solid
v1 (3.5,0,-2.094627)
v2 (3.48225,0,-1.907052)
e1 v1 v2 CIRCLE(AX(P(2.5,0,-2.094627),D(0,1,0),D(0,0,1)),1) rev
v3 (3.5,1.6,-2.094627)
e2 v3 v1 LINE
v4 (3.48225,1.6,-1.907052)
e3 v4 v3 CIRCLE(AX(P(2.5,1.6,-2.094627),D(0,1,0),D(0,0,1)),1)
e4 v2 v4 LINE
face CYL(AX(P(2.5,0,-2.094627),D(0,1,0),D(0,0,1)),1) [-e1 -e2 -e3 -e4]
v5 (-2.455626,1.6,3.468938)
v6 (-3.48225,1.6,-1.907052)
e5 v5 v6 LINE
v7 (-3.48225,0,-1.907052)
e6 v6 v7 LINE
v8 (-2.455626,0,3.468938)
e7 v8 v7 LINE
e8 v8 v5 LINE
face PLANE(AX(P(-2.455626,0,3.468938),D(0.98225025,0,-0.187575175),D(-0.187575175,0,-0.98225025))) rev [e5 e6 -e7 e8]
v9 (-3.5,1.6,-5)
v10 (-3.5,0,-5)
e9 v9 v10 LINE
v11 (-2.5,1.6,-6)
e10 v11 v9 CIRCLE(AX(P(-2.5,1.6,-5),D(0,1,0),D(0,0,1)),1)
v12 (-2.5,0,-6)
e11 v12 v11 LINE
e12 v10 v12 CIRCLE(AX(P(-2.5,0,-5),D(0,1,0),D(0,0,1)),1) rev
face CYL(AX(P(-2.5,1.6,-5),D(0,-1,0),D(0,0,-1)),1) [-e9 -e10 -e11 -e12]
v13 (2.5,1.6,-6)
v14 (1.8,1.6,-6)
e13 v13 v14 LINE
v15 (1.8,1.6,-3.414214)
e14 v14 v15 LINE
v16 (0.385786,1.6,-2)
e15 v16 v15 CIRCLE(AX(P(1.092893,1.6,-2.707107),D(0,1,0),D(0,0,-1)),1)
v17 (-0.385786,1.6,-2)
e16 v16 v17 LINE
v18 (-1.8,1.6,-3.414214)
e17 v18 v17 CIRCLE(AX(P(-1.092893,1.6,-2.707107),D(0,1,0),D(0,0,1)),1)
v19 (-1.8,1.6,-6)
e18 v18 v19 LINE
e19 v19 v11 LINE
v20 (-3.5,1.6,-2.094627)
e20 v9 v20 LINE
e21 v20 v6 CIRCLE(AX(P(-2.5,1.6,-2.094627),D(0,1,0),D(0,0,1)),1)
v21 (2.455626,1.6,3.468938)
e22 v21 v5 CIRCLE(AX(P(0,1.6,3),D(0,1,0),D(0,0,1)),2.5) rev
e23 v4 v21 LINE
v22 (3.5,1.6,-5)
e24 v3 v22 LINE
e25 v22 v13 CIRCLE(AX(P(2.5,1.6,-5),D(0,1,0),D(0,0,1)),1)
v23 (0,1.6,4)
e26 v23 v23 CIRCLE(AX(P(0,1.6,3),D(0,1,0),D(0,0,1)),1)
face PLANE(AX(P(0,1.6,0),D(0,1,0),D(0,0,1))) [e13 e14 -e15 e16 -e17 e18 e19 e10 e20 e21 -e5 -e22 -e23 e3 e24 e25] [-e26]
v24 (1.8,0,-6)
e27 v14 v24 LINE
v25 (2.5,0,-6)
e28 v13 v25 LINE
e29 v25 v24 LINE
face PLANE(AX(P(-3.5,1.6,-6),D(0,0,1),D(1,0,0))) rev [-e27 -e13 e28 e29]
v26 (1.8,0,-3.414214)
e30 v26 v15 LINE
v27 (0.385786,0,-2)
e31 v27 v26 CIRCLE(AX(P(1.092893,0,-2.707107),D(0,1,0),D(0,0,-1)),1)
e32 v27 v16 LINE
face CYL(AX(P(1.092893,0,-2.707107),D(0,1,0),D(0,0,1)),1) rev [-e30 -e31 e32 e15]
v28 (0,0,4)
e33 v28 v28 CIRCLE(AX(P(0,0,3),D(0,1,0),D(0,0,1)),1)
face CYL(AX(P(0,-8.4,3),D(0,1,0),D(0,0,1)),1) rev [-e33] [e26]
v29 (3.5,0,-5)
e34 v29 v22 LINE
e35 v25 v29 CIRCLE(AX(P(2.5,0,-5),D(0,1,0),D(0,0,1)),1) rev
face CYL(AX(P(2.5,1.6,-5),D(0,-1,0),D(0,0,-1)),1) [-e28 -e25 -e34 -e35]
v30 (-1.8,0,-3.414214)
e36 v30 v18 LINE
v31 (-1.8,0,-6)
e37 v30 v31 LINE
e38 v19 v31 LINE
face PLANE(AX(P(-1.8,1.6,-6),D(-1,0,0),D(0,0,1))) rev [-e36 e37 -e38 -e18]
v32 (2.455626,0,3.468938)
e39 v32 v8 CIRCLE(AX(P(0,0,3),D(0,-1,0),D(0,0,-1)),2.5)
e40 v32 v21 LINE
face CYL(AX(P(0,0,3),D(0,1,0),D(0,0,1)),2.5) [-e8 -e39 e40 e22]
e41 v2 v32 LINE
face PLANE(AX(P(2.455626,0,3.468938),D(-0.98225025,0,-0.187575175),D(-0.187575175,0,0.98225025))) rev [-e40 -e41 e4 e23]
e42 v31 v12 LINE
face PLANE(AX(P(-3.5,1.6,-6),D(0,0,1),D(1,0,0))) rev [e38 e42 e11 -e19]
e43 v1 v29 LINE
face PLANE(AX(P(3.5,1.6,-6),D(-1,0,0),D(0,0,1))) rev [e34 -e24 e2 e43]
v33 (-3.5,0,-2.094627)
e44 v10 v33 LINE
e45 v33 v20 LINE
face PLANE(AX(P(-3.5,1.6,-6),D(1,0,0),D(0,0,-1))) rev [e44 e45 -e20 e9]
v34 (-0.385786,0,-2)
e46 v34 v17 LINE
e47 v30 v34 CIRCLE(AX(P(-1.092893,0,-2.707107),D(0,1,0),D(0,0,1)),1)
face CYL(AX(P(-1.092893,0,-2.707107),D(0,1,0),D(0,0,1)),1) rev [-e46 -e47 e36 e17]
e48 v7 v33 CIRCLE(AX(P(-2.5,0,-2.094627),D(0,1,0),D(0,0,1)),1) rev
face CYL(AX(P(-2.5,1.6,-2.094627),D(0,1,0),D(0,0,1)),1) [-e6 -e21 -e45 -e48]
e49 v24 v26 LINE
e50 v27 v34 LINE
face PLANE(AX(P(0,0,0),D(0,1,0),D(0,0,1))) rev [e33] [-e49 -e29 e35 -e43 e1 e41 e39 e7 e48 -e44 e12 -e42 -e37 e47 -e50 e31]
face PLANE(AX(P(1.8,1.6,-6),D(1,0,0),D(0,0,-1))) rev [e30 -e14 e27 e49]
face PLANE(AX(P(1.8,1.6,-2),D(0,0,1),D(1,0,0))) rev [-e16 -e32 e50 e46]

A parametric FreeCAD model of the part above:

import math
import FreeCAD as App
import Part
import Sketcher
from FreeCAD import Vector


def edges_at(feature, points):
    """Names of the edges that pass closest to the given points."""
    edges = feature.Shape.Edges
    near = lambda p: min(range(len(edges)), key=lambda i: edges[i].distToShape(Part.Vertex(*p))[0])
    return sorted({f"Edge{near(p) + 1}" for p in points})


def add_polygon(sketch, points):
    """Adds a closed chain of lines whose ends are joined by coincident constraints."""
    first, n = sketch.GeometryCount, len(points)
    for a, b in zip(points, points[1:] + points[:1]):
        sketch.addGeometry(Part.LineSegment(App.Vector(*a, 0), App.Vector(*b, 0)), False)
    for i in range(n):
        sketch.addConstraint(Sketcher.Constraint("Coincident", first + i, 2, first + (i + 1) % n, 1))

doc = App.newDocument("Part")
body = doc.addObject("PartDesign::Body", "Body")

# Sketch on XZ plane
sketch1 = body.newObject("Sketcher::SketchObject", "Sketch")
sketch1.AttachmentSupport = (doc.getObject("XZ_Plane"), [""])
sketch1.MapMode = "FlatFace"
add_polygon(sketch1, [(-3.5, -6), (-3.5, 6), (3.5, 6), (3.5, -6)])  # lines 0-3
sketch1.addConstraint([
    Sketcher.Constraint("Vertical", 0),
    Sketcher.Constraint("Horizontal", 1),
    Sketcher.Constraint("Vertical", 2),
    Sketcher.Constraint("Horizontal", 3),
    Sketcher.Constraint("Symmetric", 0, 2, 2, 2, -1, 1),
    Sketcher.Constraint("DistanceX", 1, 1, 1, 2, 7.0),
    Sketcher.Constraint("DistanceY", 0, 1, 0, 2, 12.0),
])
pad1 = body.newObject("PartDesign::Pad", "Pad")
pad1.Profile = sketch1
pad1.Length = 1.6
pad1.Reversed = True

# Sketch on XZ plane
sketch2 = body.newObject("Sketcher::SketchObject", "Sketch001")
sketch2.AttachmentSupport = (doc.getObject("XZ_Plane"), [""])
sketch2.MapMode = "FlatFace"
add_polygon(sketch2, [(-1.8, -2), (-1.8, -6), (1.8, -6), (1.8, -2)])  # lines 0-3
sketch2.addConstraint([
    Sketcher.Constraint("Vertical", 0),
    Sketcher.Constraint("Horizontal", 1),
    Sketcher.Constraint("Vertical", 2),
    Sketcher.Constraint("Horizontal", 3),
    Sketcher.Constraint("DistanceY", 0, 2, 0, 1, 4.0),
    Sketcher.Constraint("DistanceX", 1, 1, 1, 2, 3.6),
    Sketcher.Constraint("DistanceY", 0, 2, -1, 1, 6.0),
    Sketcher.Constraint("DistanceX", 0, 2, -1, 1, 1.8),
])
pocket1 = body.newObject("PartDesign::Pocket", "Pocket")
pocket1.Profile = sketch2
pocket1.Type = "ThroughAll"

# Sketch on XZ plane
sketch3 = body.newObject("Sketcher::SketchObject", "Sketch002")
sketch3.AttachmentSupport = (doc.getObject("XZ_Plane"), [""])
sketch3.MapMode = "FlatFace"
sketch3.AttachmentOffset = App.Placement(Vector(0, 0, -1.6), App.Rotation())
sketch3.addGeometry(Part.Circle(Vector(0, 3, 0), Vector(0, 0, 1), 1), False)
sketch3.addConstraint([
    Sketcher.Constraint("PointOnObject", 0, 3, -2),
    Sketcher.Constraint("Diameter", 0, 2.0),
    Sketcher.Constraint("DistanceY", -1, 1, 0, 3, 3.0),
])
pocket2 = body.newObject("PartDesign::Pocket", "Pocket001")
pocket2.Profile = sketch3
pocket2.Length = 10
pocket2.Reversed = True

# Sketch on XZ plane
sketch4 = body.newObject("Sketcher::SketchObject", "Sketch003")
sketch4.AttachmentSupport = (doc.getObject("XZ_Plane"), [""])
sketch4.MapMode = "FlatFace"
sketch4.AttachmentOffset = App.Placement(Vector(0, 0, -1.6), App.Rotation())
sketch4.addGeometry([
    Part.LineSegment(Vector(3.5, -2, 0), Vector(2.455626, 3.468938, 0)),  # 0
    Part.ArcOfCircle(Part.Circle(Vector(0, 3, 0), Vector(0, 0, 1), 2.5), math.radians(10.811308), math.radians(169.188692)),  # 1
    Part.LineSegment(Vector(-2.455626, 3.468938, 0), Vector(-3.5, -2, 0)),  # 2
    Part.LineSegment(Vector(-3.5, -2, 0), Vector(-8.052703, 5.5, 0)),  # 3
    Part.LineSegment(Vector(-8.052703, 5.5, 0), Vector(0.801323, 12.436783, 0)),  # 4
    Part.LineSegment(Vector(0.801323, 12.436783, 0), Vector(6.17831, 2.368644, 0)),  # 5
    Part.LineSegment(Vector(6.17831, 2.368644, 0), Vector(3.5, -2, 0)),  # 6
], False)
sketch4.addConstraint([
    Sketcher.Constraint("Tangent", 0, 2, 1, 1),
    Sketcher.Constraint("Tangent", 1, 2, 2, 1),
    Sketcher.Constraint("Coincident", 2, 2, 3, 1),
    Sketcher.Constraint("Coincident", 3, 2, 4, 1),
    Sketcher.Constraint("Coincident", 4, 2, 5, 1),
    Sketcher.Constraint("Coincident", 5, 2, 6, 1),
    Sketcher.Constraint("Coincident", 6, 2, 0, 1),
    Sketcher.Constraint("Symmetric", 0, 2, 1, 2, -2),
    Sketcher.Constraint("Horizontal", 2, 2, 6, 2),
    Sketcher.Constraint("Radius", 1, 2.5),
    Sketcher.Constraint("DistanceY", -1, 1, 1, 3, 3.0),
    Sketcher.Constraint("DistanceY", 2, 2, -1, 1, 2.0),
    Sketcher.Constraint("DistanceX", 2, 2, 6, 2, 7.0),
    Sketcher.Constraint("DistanceY", -1, 1, 3, 2, 5.5),
    Sketcher.Constraint("Distance", 5, 11.414001),
    Sketcher.Constraint("Distance", 3, 8.77366),
    Sketcher.Constraint("Distance", 4, 11.247788),
    Sketcher.Constraint("DistanceX", -1, 1, 5, 2, 6.17831),
    Sketcher.Constraint("DistanceX", 1, 2, 4, 2, 3.256948),
])
pocket3 = body.newObject("PartDesign::Pocket", "Pocket002")
pocket3.Profile = sketch4
pocket3.Type = "ThroughAll"
pocket3.Midplane = True
doc.recompute()

fillet = body.newObject("PartDesign::Fillet", "Fillet")
fillet.Base = (pocket3, edges_at(pocket3, [
    (3.5, 0.8, -2),
    (-3.5, 0.8, -2),
    (-3.5, 0.8, -6),
    (3.5, 0.8, -6),
]))
fillet.Radius = 1

# Sketch on XZ plane
sketch5 = body.newObject("Sketcher::SketchObject", "Sketch004")
sketch5.AttachmentSupport = (doc.getObject("XZ_Plane"), [""])
sketch5.MapMode = "FlatFace"
sketch5.AttachmentOffset = App.Placement(Vector(0, 0, -1.6), App.Rotation())
sketch5.addGeometry([
    Part.LineSegment(Vector(1.8, -3.414214, 0), Vector(0.385786, -2, 0)),
    Part.ArcOfCircle(Part.Circle(Vector(1.092893, -2.707107, 0), Vector(0, 0, 1), 1), math.radians(-45), math.radians(135)),
    Part.LineSegment(Vector(-0.385786, -2, 0), Vector(-1.8, -3.414214, 0)),
    Part.ArcOfCircle(Part.Circle(Vector(-1.092893, -2.707107, 0), Vector(0, 0, 1), 1), math.radians(45), math.radians(225)),
], False)
sketch5.addConstraint([
    Sketcher.Constraint("Coincident", 0, 1, 1, 1),
    Sketcher.Constraint("Coincident", 1, 2, 0, 2),
    Sketcher.Constraint("Coincident", 2, 1, 3, 1),
    Sketcher.Constraint("Coincident", 3, 2, 2, 2),
    Sketcher.Constraint("Equal", 1, 3),
    Sketcher.Constraint("Symmetric", 1, 3, 3, 3, -2),
    Sketcher.Constraint("Perpendicular", 0, 2),
    Sketcher.Constraint("Horizontal", 1, 2, 2, 1),
    Sketcher.Constraint("Horizontal", 0, 1, 3, 2),
    Sketcher.Constraint("Radius", 1, 1.0),
    Sketcher.Constraint("DistanceY", 1, 2, -1, 1, 2.0),
    Sketcher.Constraint("DistanceX", -1, 1, 0, 1, 1.8),
    Sketcher.Constraint("DistanceX", 3, 3, 1, 2, 1.47868),
])
pocket4 = body.newObject("PartDesign::Pocket", "Pocket003")
pocket4.Profile = sketch5
pocket4.Type = "ThroughAll"
pocket4.Reversed = True

doc.recompute()
